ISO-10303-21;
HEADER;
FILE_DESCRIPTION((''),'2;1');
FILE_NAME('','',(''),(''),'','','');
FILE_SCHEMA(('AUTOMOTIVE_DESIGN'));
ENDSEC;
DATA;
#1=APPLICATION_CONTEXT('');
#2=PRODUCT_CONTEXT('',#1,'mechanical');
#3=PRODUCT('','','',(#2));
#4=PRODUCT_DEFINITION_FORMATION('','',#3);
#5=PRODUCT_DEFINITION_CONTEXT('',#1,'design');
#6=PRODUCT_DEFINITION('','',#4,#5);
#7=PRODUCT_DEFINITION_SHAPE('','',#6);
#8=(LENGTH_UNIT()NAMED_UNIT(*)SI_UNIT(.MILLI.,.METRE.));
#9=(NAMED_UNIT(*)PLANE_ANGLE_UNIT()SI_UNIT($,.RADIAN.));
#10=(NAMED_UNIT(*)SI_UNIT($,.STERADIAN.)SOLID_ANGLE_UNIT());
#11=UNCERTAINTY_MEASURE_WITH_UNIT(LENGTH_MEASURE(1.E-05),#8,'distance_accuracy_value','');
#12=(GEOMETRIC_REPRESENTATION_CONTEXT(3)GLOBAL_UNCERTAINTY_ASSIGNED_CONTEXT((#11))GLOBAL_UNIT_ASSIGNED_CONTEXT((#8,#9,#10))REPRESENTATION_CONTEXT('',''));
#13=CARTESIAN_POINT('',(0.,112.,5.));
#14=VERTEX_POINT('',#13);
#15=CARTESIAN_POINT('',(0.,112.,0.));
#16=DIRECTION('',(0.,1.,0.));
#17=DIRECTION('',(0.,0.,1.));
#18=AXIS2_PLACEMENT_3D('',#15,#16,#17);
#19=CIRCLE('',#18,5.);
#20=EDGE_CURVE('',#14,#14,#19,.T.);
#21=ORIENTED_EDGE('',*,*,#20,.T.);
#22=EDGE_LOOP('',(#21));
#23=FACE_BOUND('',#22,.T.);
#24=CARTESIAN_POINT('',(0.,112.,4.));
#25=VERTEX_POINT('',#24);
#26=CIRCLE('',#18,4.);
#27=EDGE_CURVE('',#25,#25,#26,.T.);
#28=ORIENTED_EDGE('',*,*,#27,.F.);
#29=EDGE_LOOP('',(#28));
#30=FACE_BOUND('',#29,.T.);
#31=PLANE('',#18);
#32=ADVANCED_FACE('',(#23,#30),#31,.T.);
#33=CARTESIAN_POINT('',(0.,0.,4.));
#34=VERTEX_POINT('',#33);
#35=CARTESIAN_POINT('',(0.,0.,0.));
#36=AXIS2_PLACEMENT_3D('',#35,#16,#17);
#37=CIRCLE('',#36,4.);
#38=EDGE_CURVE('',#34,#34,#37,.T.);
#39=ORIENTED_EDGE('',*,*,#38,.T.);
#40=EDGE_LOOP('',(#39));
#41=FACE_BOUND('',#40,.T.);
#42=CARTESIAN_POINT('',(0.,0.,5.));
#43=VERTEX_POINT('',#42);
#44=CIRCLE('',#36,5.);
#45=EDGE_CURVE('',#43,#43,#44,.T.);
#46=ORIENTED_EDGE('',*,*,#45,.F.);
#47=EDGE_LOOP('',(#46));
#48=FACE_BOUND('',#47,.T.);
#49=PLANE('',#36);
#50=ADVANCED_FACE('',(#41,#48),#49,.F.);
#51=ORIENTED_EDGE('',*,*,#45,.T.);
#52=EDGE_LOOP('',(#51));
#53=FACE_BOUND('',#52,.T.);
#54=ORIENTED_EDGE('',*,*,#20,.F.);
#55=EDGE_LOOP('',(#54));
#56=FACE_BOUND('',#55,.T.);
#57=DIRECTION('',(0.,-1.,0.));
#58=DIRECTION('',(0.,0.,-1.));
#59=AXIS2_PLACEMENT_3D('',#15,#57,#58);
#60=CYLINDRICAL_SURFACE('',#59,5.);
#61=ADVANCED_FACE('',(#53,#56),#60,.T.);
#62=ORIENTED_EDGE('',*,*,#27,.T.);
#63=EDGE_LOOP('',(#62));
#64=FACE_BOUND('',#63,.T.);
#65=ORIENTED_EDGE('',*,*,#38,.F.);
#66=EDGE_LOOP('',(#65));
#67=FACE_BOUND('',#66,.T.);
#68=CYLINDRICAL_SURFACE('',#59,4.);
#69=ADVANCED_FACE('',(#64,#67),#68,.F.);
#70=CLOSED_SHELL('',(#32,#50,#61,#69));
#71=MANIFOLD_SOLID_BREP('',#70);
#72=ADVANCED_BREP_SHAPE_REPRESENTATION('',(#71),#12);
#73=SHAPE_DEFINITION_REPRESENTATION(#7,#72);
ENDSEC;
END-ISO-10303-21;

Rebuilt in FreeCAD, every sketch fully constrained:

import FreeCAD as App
import Part
import Sketcher
from FreeCAD import Vector
Q = App.Units.Quantity

doc = App.newDocument("Part")
body = doc.addObject("PartDesign::Body", "Body")

# Sketch on XZ plane
sketch1 = doc.addObject("Sketcher::SketchObject", "Sketch")
body.addObject(sketch1)
sketch1.AttachmentSupport = (doc.XZ_Plane, [""])
sketch1.MapMode = "FlatFace"
sketch1.addGeometry(Part.Circle(Vector(0, 0, 0), Vector(0, 0, 1), 5), False)
sketch1.addGeometry(Part.Circle(Vector(0, 0, 0), Vector(0, 0, 1), 4), False)
sketch1.addConstraint(Sketcher.Constraint("Coincident", 0, 3, -1, 1))
sketch1.addConstraint(Sketcher.Constraint("Coincident", 1, 3, -1, 1))
sketch1.addConstraint(Sketcher.Constraint("Diameter", 0, Q("10 mm")))
sketch1.addConstraint(Sketcher.Constraint("Diameter", 1, Q("8 mm")))
pad1 = doc.addObject("PartDesign::Pad", "Pad")
body.addObject(pad1)
pad1.Profile = sketch1
pad1.Length = 112
pad1.Reversed = True

doc.recompute()
